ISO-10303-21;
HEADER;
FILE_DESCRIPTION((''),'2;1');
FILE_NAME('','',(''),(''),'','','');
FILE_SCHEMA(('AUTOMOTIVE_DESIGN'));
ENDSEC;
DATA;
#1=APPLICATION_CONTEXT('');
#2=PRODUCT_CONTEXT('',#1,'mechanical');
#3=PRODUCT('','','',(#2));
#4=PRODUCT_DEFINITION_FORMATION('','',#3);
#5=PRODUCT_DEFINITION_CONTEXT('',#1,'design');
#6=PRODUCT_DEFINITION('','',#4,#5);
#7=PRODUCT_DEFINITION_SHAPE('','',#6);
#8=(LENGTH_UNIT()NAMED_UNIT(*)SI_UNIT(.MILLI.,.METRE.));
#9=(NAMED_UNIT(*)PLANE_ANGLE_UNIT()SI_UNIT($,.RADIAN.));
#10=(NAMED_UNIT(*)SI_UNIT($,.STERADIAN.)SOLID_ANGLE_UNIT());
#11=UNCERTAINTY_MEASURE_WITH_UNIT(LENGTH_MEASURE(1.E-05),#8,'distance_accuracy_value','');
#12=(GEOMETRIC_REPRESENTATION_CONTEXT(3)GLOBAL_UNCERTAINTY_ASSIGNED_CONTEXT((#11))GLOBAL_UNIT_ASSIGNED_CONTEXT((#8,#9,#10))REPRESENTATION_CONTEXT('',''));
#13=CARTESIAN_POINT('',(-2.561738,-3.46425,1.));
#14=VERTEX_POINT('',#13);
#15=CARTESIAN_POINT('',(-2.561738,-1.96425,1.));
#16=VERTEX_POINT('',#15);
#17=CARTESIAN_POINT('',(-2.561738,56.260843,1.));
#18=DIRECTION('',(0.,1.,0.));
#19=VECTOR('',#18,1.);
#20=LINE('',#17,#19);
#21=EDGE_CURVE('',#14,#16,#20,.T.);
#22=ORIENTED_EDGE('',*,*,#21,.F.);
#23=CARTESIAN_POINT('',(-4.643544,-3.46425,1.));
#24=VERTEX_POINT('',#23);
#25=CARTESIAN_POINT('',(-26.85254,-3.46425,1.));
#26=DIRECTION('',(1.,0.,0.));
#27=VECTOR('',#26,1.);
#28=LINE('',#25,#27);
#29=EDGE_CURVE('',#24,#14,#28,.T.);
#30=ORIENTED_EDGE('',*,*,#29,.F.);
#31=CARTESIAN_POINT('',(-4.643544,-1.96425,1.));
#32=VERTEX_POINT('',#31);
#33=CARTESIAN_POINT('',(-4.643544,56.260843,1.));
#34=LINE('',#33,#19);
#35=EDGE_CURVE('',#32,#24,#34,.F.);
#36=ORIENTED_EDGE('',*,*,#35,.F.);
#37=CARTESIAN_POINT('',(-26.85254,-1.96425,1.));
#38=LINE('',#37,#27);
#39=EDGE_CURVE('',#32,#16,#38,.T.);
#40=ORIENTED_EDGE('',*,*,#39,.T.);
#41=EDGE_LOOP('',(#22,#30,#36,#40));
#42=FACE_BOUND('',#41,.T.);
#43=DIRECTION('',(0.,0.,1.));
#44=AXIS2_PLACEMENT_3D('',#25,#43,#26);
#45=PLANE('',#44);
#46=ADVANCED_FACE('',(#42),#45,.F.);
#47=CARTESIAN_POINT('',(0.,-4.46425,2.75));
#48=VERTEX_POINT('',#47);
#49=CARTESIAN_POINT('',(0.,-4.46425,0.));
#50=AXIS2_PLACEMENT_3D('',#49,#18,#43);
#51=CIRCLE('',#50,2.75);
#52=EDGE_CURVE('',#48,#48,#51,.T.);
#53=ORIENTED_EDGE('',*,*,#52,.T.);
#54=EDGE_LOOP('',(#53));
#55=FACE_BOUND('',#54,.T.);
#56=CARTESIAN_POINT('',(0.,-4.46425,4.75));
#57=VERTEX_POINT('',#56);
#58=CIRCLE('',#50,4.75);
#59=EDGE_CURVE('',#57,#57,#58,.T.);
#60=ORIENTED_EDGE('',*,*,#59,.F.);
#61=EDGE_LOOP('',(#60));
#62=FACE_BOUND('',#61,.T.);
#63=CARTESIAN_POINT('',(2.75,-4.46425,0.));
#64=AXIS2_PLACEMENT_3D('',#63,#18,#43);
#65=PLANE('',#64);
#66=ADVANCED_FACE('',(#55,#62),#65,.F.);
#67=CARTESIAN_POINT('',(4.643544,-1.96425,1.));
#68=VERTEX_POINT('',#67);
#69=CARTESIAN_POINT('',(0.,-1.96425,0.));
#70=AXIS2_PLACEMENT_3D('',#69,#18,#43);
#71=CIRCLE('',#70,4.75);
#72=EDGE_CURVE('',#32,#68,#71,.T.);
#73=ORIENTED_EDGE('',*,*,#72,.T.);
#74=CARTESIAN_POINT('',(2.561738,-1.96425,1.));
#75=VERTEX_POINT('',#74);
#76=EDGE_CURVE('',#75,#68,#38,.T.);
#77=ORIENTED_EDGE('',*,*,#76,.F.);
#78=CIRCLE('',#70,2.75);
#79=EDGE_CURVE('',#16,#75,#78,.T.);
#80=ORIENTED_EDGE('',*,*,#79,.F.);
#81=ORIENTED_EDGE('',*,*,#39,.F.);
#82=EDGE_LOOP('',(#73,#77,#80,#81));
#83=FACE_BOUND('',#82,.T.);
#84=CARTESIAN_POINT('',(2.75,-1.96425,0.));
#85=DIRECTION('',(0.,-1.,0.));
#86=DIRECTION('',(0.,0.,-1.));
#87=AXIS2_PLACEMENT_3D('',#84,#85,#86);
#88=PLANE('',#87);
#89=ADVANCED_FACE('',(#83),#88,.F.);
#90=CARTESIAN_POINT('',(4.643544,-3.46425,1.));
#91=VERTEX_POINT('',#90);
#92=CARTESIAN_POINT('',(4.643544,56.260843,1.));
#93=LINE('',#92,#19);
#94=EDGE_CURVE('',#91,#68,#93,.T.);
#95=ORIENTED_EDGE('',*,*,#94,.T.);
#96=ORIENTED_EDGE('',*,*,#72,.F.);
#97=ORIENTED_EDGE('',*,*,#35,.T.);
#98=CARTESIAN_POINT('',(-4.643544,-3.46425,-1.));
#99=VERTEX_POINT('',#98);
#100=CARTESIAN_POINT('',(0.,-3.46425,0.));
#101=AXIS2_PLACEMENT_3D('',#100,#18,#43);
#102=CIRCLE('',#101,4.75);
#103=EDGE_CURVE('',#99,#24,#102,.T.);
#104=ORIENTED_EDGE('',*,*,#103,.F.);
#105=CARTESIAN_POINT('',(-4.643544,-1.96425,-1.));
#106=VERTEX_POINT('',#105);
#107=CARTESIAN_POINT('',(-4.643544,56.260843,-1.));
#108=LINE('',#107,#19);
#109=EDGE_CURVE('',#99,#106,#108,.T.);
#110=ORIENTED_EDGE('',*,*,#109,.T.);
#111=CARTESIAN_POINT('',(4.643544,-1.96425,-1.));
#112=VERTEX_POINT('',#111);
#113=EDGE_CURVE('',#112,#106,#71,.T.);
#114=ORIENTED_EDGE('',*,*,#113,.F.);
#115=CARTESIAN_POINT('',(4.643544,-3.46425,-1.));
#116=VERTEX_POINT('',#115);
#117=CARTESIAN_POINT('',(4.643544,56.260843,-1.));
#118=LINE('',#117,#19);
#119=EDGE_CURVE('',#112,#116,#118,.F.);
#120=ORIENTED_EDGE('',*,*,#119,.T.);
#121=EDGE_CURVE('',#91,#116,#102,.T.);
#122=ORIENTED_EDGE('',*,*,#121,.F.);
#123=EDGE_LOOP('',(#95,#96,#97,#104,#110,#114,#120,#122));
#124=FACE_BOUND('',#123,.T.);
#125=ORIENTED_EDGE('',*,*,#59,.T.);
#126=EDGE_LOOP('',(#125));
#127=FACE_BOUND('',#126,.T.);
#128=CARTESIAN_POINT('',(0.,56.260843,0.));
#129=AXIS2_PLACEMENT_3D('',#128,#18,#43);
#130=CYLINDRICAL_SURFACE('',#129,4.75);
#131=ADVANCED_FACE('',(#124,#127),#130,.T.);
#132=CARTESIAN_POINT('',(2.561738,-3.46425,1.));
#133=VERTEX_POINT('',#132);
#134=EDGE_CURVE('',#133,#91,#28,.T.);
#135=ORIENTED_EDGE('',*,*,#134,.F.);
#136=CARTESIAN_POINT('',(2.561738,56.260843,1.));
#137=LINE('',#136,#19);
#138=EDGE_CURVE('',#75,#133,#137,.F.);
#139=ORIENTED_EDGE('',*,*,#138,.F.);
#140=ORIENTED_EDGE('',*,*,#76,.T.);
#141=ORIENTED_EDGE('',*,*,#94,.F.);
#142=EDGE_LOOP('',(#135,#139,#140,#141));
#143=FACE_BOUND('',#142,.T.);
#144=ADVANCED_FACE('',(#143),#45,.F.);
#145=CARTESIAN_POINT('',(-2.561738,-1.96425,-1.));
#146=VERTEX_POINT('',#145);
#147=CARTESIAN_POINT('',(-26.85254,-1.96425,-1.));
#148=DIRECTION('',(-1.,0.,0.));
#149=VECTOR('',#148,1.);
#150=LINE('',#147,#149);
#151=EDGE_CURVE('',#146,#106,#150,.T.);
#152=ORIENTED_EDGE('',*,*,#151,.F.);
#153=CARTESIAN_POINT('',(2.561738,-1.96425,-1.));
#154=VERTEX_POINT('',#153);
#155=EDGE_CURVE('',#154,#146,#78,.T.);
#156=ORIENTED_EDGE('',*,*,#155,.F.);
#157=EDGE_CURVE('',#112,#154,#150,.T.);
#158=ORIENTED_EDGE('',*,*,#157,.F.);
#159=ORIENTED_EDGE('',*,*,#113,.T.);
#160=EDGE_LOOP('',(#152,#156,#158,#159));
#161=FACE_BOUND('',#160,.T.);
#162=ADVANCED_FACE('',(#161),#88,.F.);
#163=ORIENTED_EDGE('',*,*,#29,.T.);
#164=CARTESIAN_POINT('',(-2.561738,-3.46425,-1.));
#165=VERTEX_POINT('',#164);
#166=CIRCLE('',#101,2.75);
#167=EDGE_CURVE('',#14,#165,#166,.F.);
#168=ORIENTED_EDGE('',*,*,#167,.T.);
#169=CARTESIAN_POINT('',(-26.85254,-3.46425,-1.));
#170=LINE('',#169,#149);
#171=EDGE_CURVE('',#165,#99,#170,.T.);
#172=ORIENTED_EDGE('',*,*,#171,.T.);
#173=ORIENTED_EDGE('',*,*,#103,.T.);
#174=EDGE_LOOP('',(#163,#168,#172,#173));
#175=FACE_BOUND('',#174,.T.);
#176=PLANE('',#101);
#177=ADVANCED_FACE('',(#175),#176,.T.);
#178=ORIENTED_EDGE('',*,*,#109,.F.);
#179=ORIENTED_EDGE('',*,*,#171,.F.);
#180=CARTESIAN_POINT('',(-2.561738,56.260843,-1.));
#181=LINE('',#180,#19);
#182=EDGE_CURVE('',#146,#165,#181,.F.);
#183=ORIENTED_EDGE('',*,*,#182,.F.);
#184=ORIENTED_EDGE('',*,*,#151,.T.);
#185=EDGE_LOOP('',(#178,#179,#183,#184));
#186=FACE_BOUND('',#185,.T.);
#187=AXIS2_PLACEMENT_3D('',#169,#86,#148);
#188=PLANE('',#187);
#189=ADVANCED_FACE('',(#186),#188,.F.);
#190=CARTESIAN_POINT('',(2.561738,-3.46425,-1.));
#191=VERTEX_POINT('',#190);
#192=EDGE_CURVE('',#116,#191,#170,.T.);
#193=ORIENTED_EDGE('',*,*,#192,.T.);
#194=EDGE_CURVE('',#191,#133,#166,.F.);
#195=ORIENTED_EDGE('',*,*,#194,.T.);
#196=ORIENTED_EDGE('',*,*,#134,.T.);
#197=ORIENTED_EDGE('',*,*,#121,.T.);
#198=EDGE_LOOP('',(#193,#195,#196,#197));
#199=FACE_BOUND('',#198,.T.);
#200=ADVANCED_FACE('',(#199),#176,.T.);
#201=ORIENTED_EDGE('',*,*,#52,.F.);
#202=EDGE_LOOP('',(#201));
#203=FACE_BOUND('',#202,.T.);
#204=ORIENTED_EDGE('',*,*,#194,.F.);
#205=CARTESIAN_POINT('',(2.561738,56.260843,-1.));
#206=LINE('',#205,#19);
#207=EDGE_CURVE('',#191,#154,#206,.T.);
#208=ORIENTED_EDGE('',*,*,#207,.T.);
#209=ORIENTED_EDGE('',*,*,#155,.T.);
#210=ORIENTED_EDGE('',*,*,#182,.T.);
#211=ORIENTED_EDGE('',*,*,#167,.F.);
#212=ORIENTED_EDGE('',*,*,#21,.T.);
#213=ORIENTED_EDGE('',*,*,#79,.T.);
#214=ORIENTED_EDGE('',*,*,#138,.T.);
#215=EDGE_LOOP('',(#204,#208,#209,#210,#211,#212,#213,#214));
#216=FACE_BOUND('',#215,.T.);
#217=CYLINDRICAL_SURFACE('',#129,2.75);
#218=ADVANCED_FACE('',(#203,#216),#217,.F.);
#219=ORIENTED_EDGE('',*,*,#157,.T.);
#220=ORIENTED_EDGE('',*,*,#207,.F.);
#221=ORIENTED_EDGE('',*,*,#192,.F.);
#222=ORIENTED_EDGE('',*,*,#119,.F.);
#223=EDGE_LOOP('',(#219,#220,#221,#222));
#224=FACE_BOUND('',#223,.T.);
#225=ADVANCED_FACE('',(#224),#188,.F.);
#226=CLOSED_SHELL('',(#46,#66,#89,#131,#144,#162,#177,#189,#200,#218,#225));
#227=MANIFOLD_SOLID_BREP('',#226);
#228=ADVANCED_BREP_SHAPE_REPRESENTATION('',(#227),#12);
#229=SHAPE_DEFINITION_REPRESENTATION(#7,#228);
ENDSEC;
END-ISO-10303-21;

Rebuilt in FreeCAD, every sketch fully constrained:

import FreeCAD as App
import Part
import Sketcher

V = App.Vector

doc = App.newDocument("Part")
body = doc.addObject("PartDesign::Body", "Body")

# Sketch on XY plane
sketch1 = body.newObject("Sketcher::SketchObject", "Sketch")
sketch1.AttachmentSupport = (doc.getObject("XY_Plane"), [""])
sketch1.MapMode = "FlatFace"
sketch1.addGeometry([
    Part.LineSegment(V(2.8, -2, 0), V(2.8, -4.5, 0)),
    Part.LineSegment(V(2.8, -4.5, 0), V(4.8, -4.5, 0)),
    Part.LineSegment(V(4.8, -4.5, 0), V(4.8, -2, 0)),
    Part.LineSegment(V(4.8, -2, 0), V(2.8, -2, 0)),
], False)
sketch1.addConstraint([
    Sketcher.Constraint("Coincident", 0, 2, 1, 1),
    Sketcher.Constraint("Coincident", 1, 2, 2, 1),
    Sketcher.Constraint("Coincident", 2, 2, 3, 1),
    Sketcher.Constraint("Coincident", 3, 2, 0, 1),
    Sketcher.Constraint("Vertical", 0),
    Sketcher.Constraint("Horizontal", 1),
    Sketcher.Constraint("Vertical", 2),
    Sketcher.Constraint("Horizontal", 3),
    Sketcher.Constraint("DistanceX", 1, 1, 1, 2, 2.0),
    Sketcher.Constraint("DistanceY", 0, 2, 0, 1, 2.5),
    Sketcher.Constraint("DistanceX", -1, 1, 0, 2, 2.75),
    Sketcher.Constraint("DistanceY", 0, 2, -1, 1, 4.46425),
])
revolution = body.newObject("PartDesign::Revolution", "Revolution")
revolution.Profile = sketch1
revolution.ReferenceAxis = (sketch1, ["V_Axis"])
revolution.Angle = 360

# Sketch on XZ plane
sketch2 = body.newObject("Sketcher::SketchObject", "Sketch001")
sketch2.AttachmentSupport = (doc.getObject("XZ_Plane"), [""])
sketch2.MapMode = "FlatFace"
sketch2.AttachmentOffset = App.Placement(V(0, 0, 1.96425), App.Rotation())
sketch2.addGeometry([
    Part.LineSegment(V(-26.9, -1, 0), V(-26.9, 1, 0)),
    Part.LineSegment(V(-26.9, 1, 0), V(26.9, 1, 0)),
    Part.LineSegment(V(26.9, 1, 0), V(26.9, -1, 0)),
    Part.LineSegment(V(26.9, -1, 0), V(-26.9, -1, 0)),
], False)
sketch2.addConstraint([
    Sketcher.Constraint("Coincident", 0, 2, 1, 1),
    Sketcher.Constraint("Coincident", 1, 2, 2, 1),
    Sketcher.Constraint("Coincident", 2, 2, 3, 1),
    Sketcher.Constraint("Coincident", 3, 2, 0, 1),
    Sketcher.Constraint("Vertical", 0),
    Sketcher.Constraint("Horizontal", 1),
    Sketcher.Constraint("Vertical", 2),
    Sketcher.Constraint("Horizontal", 3),
    Sketcher.Constraint("Symmetric", 0, 2, 2, 2, -1, 1),
    Sketcher.Constraint("DistanceY", 0, 1, 0, 2, 2.0),
    Sketcher.Constraint("DistanceX", 1, 1, 1, 2, 53.705081),
])
pocket1 = body.newObject("PartDesign::Pocket", "Pocket")
pocket1.Profile = sketch2
pocket1.Length = 1.5
pocket1.Reversed = True

doc.recompute()
